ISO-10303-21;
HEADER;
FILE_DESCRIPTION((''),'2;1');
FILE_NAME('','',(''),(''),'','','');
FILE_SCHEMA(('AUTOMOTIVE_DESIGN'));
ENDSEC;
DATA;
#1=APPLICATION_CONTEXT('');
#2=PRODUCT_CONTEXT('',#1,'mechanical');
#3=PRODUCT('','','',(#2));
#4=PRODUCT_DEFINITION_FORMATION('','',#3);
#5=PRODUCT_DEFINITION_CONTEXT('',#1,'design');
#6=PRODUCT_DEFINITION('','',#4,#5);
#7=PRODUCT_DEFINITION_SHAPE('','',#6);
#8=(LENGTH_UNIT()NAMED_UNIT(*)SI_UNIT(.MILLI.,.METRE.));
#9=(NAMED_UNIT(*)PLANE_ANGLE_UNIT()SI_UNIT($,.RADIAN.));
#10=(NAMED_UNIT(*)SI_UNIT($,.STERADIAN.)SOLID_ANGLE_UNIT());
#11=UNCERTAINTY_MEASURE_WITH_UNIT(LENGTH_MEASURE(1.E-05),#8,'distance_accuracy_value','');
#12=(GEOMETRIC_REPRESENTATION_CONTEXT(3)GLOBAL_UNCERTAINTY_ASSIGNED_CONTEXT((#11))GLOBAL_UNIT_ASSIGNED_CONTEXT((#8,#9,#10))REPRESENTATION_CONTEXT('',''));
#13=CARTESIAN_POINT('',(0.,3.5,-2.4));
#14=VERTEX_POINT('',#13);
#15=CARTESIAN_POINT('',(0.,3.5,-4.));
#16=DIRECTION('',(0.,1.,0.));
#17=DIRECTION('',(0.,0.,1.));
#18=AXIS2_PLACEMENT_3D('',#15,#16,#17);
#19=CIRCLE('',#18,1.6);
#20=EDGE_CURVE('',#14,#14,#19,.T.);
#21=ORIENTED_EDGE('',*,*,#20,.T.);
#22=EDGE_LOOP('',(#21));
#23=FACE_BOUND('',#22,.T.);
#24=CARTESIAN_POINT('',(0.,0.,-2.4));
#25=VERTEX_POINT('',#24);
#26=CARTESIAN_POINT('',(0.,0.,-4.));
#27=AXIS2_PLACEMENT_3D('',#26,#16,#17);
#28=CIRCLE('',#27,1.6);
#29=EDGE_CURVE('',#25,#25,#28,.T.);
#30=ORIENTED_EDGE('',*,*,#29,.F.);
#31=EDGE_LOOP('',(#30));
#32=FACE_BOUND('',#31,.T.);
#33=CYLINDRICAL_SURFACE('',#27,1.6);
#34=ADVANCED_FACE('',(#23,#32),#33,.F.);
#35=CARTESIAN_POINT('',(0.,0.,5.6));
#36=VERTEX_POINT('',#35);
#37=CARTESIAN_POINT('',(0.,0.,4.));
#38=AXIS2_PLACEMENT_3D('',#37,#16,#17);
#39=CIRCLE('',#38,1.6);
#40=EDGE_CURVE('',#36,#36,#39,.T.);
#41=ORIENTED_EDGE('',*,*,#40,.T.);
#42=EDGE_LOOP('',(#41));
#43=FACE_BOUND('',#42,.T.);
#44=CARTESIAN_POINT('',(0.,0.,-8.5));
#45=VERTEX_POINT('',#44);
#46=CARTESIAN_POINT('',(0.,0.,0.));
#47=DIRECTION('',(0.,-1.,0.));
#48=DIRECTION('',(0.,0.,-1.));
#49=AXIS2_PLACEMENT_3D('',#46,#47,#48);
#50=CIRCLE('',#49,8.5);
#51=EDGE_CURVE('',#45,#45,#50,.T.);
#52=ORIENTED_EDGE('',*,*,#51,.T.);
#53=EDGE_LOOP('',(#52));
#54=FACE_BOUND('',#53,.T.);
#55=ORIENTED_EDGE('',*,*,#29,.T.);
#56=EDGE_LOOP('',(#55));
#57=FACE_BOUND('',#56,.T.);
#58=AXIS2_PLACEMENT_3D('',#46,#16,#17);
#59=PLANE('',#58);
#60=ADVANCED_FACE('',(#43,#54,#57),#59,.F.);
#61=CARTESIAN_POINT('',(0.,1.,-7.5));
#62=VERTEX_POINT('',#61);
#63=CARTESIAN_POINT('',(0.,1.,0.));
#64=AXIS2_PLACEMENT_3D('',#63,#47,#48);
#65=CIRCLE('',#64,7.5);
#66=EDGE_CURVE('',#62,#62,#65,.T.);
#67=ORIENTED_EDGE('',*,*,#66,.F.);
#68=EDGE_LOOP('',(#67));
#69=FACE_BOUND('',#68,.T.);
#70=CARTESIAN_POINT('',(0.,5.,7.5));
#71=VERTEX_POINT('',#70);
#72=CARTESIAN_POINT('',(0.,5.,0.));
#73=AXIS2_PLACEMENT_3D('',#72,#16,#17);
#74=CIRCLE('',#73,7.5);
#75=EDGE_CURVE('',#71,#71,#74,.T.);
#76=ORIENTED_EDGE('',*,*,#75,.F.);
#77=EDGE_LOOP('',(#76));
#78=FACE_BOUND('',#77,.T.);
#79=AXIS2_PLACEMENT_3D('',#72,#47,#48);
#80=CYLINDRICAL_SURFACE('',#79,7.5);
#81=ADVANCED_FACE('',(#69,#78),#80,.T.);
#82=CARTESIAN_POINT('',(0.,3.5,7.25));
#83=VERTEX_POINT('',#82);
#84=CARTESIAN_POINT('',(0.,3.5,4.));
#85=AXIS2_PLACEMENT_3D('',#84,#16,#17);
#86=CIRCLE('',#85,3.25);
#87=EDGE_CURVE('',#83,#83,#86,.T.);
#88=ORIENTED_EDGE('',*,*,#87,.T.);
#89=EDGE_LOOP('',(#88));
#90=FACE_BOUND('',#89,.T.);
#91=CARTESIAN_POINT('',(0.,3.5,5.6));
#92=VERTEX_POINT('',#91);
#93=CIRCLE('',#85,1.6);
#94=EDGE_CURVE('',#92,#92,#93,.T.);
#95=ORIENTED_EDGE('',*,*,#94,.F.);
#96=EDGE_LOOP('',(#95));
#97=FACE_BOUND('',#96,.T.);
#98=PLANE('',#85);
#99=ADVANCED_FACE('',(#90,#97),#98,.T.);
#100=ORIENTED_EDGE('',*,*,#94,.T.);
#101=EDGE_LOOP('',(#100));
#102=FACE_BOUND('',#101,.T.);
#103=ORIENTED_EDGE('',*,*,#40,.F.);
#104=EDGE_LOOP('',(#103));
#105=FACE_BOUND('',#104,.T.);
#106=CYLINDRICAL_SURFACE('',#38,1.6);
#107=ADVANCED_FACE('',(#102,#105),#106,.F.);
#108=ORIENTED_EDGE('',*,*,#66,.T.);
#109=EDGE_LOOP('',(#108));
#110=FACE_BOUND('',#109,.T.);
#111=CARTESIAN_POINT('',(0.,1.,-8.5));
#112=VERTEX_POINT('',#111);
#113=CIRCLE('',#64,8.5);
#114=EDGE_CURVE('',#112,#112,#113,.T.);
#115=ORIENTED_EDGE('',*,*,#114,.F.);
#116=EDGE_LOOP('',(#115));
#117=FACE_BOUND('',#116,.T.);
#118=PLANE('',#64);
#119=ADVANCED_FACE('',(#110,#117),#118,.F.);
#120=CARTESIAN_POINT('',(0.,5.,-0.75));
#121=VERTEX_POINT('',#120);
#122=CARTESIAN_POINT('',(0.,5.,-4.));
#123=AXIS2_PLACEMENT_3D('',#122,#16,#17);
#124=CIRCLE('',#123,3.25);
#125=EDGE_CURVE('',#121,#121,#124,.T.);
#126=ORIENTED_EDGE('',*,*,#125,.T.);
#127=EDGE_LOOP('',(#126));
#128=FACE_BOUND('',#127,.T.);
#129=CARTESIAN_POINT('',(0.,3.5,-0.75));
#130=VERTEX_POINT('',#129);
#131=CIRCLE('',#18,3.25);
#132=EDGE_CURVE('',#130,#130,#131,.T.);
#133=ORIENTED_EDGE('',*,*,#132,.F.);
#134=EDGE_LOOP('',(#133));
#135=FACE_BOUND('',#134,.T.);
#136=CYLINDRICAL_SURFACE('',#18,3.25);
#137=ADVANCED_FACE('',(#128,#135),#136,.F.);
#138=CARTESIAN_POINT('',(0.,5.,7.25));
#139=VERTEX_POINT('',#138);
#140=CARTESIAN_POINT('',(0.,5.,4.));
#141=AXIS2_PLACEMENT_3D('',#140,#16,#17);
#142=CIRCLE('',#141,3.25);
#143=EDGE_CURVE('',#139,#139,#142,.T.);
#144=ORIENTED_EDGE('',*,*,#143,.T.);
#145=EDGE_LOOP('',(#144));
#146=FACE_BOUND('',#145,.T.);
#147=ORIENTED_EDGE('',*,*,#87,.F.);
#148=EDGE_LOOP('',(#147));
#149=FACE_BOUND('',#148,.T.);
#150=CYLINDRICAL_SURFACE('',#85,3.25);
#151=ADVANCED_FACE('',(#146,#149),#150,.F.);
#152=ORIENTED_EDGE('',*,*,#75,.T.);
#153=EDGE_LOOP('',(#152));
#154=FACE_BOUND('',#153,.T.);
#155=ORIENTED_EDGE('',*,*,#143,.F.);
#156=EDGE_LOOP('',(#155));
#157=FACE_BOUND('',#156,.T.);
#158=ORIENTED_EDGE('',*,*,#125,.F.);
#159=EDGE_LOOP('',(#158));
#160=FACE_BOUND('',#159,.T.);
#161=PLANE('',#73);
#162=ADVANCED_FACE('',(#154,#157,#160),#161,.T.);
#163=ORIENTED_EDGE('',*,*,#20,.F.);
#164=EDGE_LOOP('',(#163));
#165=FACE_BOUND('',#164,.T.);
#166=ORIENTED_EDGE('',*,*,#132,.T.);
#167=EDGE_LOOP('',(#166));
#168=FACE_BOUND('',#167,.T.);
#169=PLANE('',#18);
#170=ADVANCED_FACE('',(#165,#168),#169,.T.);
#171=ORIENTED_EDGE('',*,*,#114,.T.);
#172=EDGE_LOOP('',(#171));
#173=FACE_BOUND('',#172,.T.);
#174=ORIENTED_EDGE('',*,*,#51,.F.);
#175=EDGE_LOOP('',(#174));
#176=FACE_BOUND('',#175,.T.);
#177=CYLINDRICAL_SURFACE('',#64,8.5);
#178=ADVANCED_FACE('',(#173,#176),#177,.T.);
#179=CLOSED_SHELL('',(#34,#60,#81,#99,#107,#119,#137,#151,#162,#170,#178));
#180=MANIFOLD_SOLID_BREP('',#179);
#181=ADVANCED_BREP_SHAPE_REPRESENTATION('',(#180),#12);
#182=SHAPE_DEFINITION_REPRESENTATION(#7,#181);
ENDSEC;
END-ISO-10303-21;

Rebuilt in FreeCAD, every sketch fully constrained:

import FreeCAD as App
import Part
import Sketcher
from FreeCAD import Vector
Q = App.Units.Quantity

doc = App.newDocument("Part")
body = doc.addObject("PartDesign::Body", "Body")

# Sketch on XZ plane
sketch1 = body.newObject("Sketcher::SketchObject", "Sketch")
sketch1.AttachmentSupport = (doc.getObject("XZ_Plane"), [""])
sketch1.MapMode = "FlatFace"
sketch1.addGeometry(Part.Circle(Vector(0, 0, 0), Vector(0, 0, 1), 8), False)
sketch1.addConstraint(Sketcher.Constraint("Coincident", 0, 3, -1, 1))
sketch1.addConstraint(Sketcher.Constraint("Diameter", 0, Q("15 mm")))
pad1 = body.newObject("PartDesign::Pad", "Pad")
pad1.Profile = sketch1
pad1.Length = 5
pad1.Reversed = True

# Sketch on XZ plane
sketch2 = body.newObject("Sketcher::SketchObject", "Sketch001")
sketch2.AttachmentSupport = (doc.getObject("XZ_Plane"), [""])
sketch2.MapMode = "FlatFace"
sketch2.AttachmentOffset = App.Placement(Vector(0, 0, -5), App.Rotation())
sketch2.addGeometry(Part.Circle(Vector(0, -4, 0), Vector(0, 0, 1), 3.2), False)
sketch2.addGeometry(Part.Circle(Vector(0, 4, 0), Vector(0, 0, 1), 3.2), False)
sketch2.addConstraint(Sketcher.Constraint("Equal", 0, 1))
sketch2.addConstraint(Sketcher.Constraint("Symmetric", 0, 3, 1, 3, -1, 1))
sketch2.addConstraint(Sketcher.Constraint("PointOnObject", 0, 3, -2))
sketch2.addConstraint(Sketcher.Constraint("Diameter", 0, Q("6.5 mm")))
sketch2.addConstraint(Sketcher.Constraint("DistanceY", 0, 3, -1, 1, Q("4 mm")))
pocket1 = body.newObject("PartDesign::Pocket", "Pocket")
pocket1.Profile = sketch2
pocket1.Length = 1.5
pocket1.Reversed = True

# Sketch on XZ plane
sketch3 = body.newObject("Sketcher::SketchObject", "Sketch002")
sketch3.AttachmentSupport = (doc.getObject("XZ_Plane"), [""])
sketch3.MapMode = "FlatFace"
sketch3.addGeometry(Part.Circle(Vector(0, 0, 0), Vector(0, 0, 1), 8), False)
sketch3.addConstraint(Sketcher.Constraint("Coincident", 0, 3, -1, 1))
sketch3.addConstraint(Sketcher.Constraint("Diameter", 0, Q("17 mm")))
pad2 = body.newObject("PartDesign::Pad", "Pad001")
pad2.Profile = sketch3
pad2.Length = 1
pad2.Reversed = True

# Sketch on XZ plane
sketch4 = body.newObject("Sketcher::SketchObject", "Sketch003")
sketch4.AttachmentSupport = (doc.getObject("XZ_Plane"), [""])
sketch4.MapMode = "FlatFace"
sketch4.AttachmentOffset = App.Placement(Vector(0, 0, -5), App.Rotation())
sketch4.addGeometry(Part.Circle(Vector(0, -4, 0), Vector(0, 0, 1), 1.6), False)
sketch4.addGeometry(Part.Circle(Vector(0, 4, 0), Vector(0, 0, 1), 1.6), False)
sketch4.addConstraint(Sketcher.Constraint("Equal", 0, 1))
sketch4.addConstraint(Sketcher.Constraint("Symmetric", 0, 3, 1, 3, -1, 1))
sketch4.addConstraint(Sketcher.Constraint("PointOnObject", 0, 3, -2))
sketch4.addConstraint(Sketcher.Constraint("Diameter", 0, Q("3.2 mm")))
sketch4.addConstraint(Sketcher.Constraint("DistanceY", 0, 3, -1, 1, Q("4 mm")))
pocket2 = body.newObject("PartDesign::Pocket", "Pocket001")
pocket2.Profile = sketch4
pocket2.Type = "ThroughAll"
pocket2.Reversed = True

doc.recompute()
